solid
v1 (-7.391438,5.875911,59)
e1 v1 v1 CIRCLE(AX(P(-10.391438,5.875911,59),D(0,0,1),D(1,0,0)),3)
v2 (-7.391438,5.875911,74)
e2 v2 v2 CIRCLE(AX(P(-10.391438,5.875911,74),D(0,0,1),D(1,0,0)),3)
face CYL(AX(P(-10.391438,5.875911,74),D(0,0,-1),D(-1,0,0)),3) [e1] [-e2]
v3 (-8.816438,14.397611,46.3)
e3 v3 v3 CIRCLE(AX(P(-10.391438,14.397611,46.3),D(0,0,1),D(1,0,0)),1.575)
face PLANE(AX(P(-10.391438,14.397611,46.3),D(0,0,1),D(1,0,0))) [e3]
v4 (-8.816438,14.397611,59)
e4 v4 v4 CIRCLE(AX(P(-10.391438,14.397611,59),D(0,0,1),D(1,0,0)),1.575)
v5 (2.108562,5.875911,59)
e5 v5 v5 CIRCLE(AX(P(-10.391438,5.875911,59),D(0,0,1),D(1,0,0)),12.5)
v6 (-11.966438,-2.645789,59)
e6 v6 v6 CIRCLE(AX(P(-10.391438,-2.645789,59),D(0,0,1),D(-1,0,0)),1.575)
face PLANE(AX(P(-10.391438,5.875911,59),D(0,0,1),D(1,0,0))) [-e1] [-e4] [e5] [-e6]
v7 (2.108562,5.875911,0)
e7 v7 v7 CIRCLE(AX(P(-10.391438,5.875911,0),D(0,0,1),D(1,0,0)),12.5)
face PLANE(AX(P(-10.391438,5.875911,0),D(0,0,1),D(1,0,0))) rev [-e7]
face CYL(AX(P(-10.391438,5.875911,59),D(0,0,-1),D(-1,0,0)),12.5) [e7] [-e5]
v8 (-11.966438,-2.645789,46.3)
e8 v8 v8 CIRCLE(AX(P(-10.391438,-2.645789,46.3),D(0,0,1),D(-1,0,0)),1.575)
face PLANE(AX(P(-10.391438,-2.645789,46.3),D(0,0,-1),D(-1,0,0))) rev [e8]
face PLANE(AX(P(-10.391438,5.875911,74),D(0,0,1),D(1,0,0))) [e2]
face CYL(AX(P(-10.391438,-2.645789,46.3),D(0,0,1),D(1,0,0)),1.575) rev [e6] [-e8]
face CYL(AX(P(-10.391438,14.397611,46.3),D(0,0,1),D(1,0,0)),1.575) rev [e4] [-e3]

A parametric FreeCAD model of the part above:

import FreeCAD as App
import Part
import Sketcher

V = App.Vector

doc = App.newDocument("Part")
body = doc.addObject("PartDesign::Body", "Body")

sketch1 = doc.addObject("Sketcher::SketchObject", "Sketch")
body.addObject(sketch1)
sketch1.AttachmentSupport = (doc.XY_Plane, [""])
sketch1.MapMode = "FlatFace"
sketch1.addGeometry(Part.Circle(V(-10, 6, 0), V(0, 0, 1), 12), False)
sketch1.addConstraint([
    Sketcher.Constraint("Diameter", 0, 25.0),
    Sketcher.Constraint("DistanceY", -1, 1, 0, 3, 5.875911),
    Sketcher.Constraint("DistanceX", 0, 3, -1, 1, 10.391438),
])
pad1 = doc.addObject("PartDesign::Pad", "Pad")
body.addObject(pad1)
pad1.Profile = sketch1
pad1.Length = 59

sketch2 = doc.addObject("Sketcher::SketchObject", "Sketch001")
body.addObject(sketch2)
sketch2.AttachmentSupport = (doc.XY_Plane, [""])
sketch2.MapMode = "FlatFace"
sketch2.AttachmentOffset = App.Placement(V(0, 0, 59), App.Rotation())
sketch2.addGeometry([
    Part.Circle(V(-10.4, 14.4, 0), V(0, 0, 1), 1.6),
    Part.Circle(V(-10.4, -2.6, 0), V(0, 0, 1), 1.6),
], False)
sketch2.addConstraint([
    Sketcher.Constraint("Equal", 0, 1),
    Sketcher.Constraint("Vertical", 0, 3, 1, 3),
    Sketcher.Constraint("Diameter", 0, 3.15),
    Sketcher.Constraint("DistanceY", 1, 3, 0, 3, 17.0434),
    Sketcher.Constraint("DistanceY", -1, 1, 0, 3, 14.397611),
    Sketcher.Constraint("DistanceX", 0, 3, -1, 1, 10.391438),
])
pocket1 = doc.addObject("PartDesign::Pocket", "Pocket")
body.addObject(pocket1)
pocket1.Profile = sketch2
pocket1.Length = 12.7

sketch3 = doc.addObject("Sketcher::SketchObject", "Sketch002")
body.addObject(sketch3)
sketch3.AttachmentSupport = (doc.XY_Plane, [""])
sketch3.MapMode = "FlatFace"
sketch3.AttachmentOffset = App.Placement(V(0, 0, 59), App.Rotation())
sketch3.addGeometry(Part.Circle(V(-10.4, 5.9, 0), V(0, 0, 1), 3), False)
sketch3.addConstraint([
    Sketcher.Constraint("Diameter", 0, 6.0),
    Sketcher.Constraint("DistanceY", -1, 1, 0, 3, 5.875911),
    Sketcher.Constraint("DistanceX", 0, 3, -1, 1, 10.391438),
])
pad2 = doc.addObject("PartDesign::Pad", "Pad001")
body.addObject(pad2)
pad2.Profile = sketch3
pad2.Length = 15

doc.recompute()
